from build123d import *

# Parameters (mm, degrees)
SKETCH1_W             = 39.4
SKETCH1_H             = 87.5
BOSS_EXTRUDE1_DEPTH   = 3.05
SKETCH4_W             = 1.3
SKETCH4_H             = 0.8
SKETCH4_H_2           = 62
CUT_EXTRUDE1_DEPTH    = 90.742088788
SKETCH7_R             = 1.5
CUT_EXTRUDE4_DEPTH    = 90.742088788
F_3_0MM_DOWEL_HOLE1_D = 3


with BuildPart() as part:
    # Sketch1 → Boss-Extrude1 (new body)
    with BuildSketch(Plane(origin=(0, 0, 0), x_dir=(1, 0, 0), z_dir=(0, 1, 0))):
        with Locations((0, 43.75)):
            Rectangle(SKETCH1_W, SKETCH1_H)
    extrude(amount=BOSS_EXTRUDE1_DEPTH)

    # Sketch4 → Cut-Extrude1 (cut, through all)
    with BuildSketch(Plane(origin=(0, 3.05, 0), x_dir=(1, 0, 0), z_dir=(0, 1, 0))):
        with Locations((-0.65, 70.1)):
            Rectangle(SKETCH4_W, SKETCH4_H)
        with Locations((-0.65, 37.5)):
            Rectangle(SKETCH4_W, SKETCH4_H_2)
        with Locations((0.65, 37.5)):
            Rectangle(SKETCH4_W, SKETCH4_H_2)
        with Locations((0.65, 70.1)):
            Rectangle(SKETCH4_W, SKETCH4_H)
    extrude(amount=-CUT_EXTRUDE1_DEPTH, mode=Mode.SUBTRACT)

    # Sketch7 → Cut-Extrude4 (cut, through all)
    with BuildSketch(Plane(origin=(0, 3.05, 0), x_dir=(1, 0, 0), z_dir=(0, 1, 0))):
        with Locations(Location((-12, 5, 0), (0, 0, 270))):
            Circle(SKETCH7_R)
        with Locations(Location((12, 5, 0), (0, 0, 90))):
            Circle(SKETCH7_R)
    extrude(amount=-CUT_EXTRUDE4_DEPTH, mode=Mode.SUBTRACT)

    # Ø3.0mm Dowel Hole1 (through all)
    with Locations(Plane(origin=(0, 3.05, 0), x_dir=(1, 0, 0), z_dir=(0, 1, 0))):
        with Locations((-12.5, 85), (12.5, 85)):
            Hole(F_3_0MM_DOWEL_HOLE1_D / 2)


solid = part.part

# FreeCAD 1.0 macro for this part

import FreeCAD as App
import Part
import Sketcher
Q = App.Units.Quantity

doc = App.newDocument("Part")
body = doc.addObject("PartDesign::Body", "Body")

# Sketch on XZ plane
sketch1 = body.newObject("Sketcher::SketchObject", "Sketch")
sketch1.AttachmentSupport = (doc.getObject("XZ_Plane"), [""])
sketch1.MapMode = "FlatFace"
sketch1.addGeometry([
    Part.LineSegment(App.Vector(-20, -88, 0), App.Vector(-20, 0, 0)),
    Part.LineSegment(App.Vector(-20, 0, 0), App.Vector(20, 0, 0)),
    Part.LineSegment(App.Vector(20, 0, 0), App.Vector(20, -88, 0)),
    Part.LineSegment(App.Vector(20, -88, 0), App.Vector(-20, -88, 0)),
], False)
sketch1.addConstraint([
    Sketcher.Constraint("Coincident", 0, 2, 1, 1),
    Sketcher.Constraint("Coincident", 1, 2, 2, 1),
    Sketcher.Constraint("Coincident", 2, 2, 3, 1),
    Sketcher.Constraint("Coincident", 3, 2, 0, 1),
    Sketcher.Constraint("Vertical", 0),
    Sketcher.Constraint("Horizontal", 1),
    Sketcher.Constraint("Vertical", 2),
    Sketcher.Constraint("Horizontal", 3),
    Sketcher.Constraint("Symmetric", 0, 2, 1, 2, -1, 1),
    Sketcher.Constraint("DistanceX", 1, 1, 1, 2, Q("39.4 mm")),
    Sketcher.Constraint("DistanceY", 0, 1, 0, 2, Q("87.5 mm")),
])
pad1 = body.newObject("PartDesign::Pad", "Pad")
pad1.Profile = sketch1
pad1.Length = 3.05
pad1.Reversed = True

# Sketch on XZ plane
sketch2 = body.newObject("Sketcher::SketchObject", "Sketch001")
sketch2.AttachmentSupport = (doc.getObject("XZ_Plane"), [""])
sketch2.MapMode = "FlatFace"
sketch2.AttachmentOffset = App.Placement(App.Vector(0, 0, -3.05), App.Rotation())
sketch2.addGeometry([
    Part.LineSegment(App.Vector(-1.3, -70.5, 0), App.Vector(-1.3, -69.7, 0)),  # 0
    Part.LineSegment(App.Vector(-1.3, -69.7, 0), App.Vector(1.3, -69.7, 0)),  # 1
    Part.LineSegment(App.Vector(1.3, -69.7, 0), App.Vector(1.3, -70.5, 0)),  # 2
    Part.LineSegment(App.Vector(1.3, -70.5, 0), App.Vector(-1.3, -70.5, 0)),  # 3
    Part.LineSegment(App.Vector(-1.3, -68.5, 0), App.Vector(-1.3, -6.5, 0)),  # 4
    Part.LineSegment(App.Vector(-1.3, -6.5, 0), App.Vector(1.3, -6.5, 0)),  # 5
    Part.LineSegment(App.Vector(1.3, -6.5, 0), App.Vector(1.3, -68.5, 0)),  # 6
    Part.LineSegment(App.Vector(1.3, -68.5, 0), App.Vector(-1.3, -68.5, 0)),  # 7
], False)
sketch2.addConstraint([
    Sketcher.Constraint("Coincident", 0, 2, 1, 1),
    Sketcher.Constraint("Coincident", 1, 2, 2, 1),
    Sketcher.Constraint("Coincident", 2, 2, 3, 1),
    Sketcher.Constraint("Coincident", 3, 2, 0, 1),
    Sketcher.Constraint("Coincident", 4, 2, 5, 1),
    Sketcher.Constraint("Coincident", 5, 2, 6, 1),
    Sketcher.Constraint("Coincident", 6, 2, 7, 1),
    Sketcher.Constraint("Coincident", 7, 2, 4, 1),
    Sketcher.Constraint("Vertical", 0),
    Sketcher.Constraint("Horizontal", 1),
    Sketcher.Constraint("Vertical", 2),
    Sketcher.Constraint("Horizontal", 3),
    Sketcher.Constraint("Vertical", 4),
    Sketcher.Constraint("Horizontal", 5),
    Sketcher.Constraint("Vertical", 6),
    Sketcher.Constraint("Horizontal", 7),
    Sketcher.Constraint("Vertical", 3, 2, 4, 2),
    Sketcher.Constraint("Vertical", 2, 2, 5, 2),
    Sketcher.Constraint("DistanceY", 4, 1, 4, 2, Q("62 mm")),
    Sketcher.Constraint("DistanceX", 1, 1, 1, 2, Q("2.6 mm")),
    Sketcher.Constraint("DistanceY", 0, 1, 0, 2, Q("0.8 mm")),
    Sketcher.Constraint("DistanceY", 3, 2, 4, 2, Q("64 mm")),
    Sketcher.Constraint("DistanceX", 0, 2, -1, 1, Q("1.3 mm")),
    Sketcher.Constraint("DistanceY", 0, 2, -1, 1, Q("69.7 mm")),
])
pocket1 = body.newObject("PartDesign::Pocket", "Pocket")
pocket1.Profile = sketch2
pocket1.Type = "ThroughAll"
pocket1.Reversed = True

# Sketch on XZ plane
sketch3 = body.newObject("Sketcher::SketchObject", "Sketch002")
sketch3.AttachmentSupport = (doc.getObject("XZ_Plane"), [""])
sketch3.MapMode = "FlatFace"
sketch3.AttachmentOffset = App.Placement(App.Vector(0, 0, -3.05), App.Rotation())
sketch3.addGeometry([
    Part.Circle(App.Vector(-12, -5, 0), App.Vector(0, 0, 1), 1.5),
    Part.Circle(App.Vector(12, -5, 0), App.Vector(0, 0, 1), 1.5),
], False)
sketch3.addConstraint([
    Sketcher.Constraint("Equal", 0, 1),
    Sketcher.Constraint("Symmetric", 0, 3, 1, 3, -2),
    Sketcher.Constraint("Diameter", 0, Q("3 mm")),
    Sketcher.Constraint("DistanceX", 0, 3, -1, 1, Q("12 mm")),
    Sketcher.Constraint("DistanceY", 0, 3, -1, 1, Q("5 mm")),
])
pocket2 = body.newObject("PartDesign::Pocket", "Pocket001")
pocket2.Profile = sketch3
pocket2.Type = "ThroughAll"
pocket2.Reversed = True

# Sketch on XZ plane
sketch4 = body.newObject("Sketcher::SketchObject", "Sketch003")
sketch4.AttachmentSupport = (doc.getObject("XZ_Plane"), [""])
sketch4.MapMode = "FlatFace"
sketch4.AttachmentOffset = App.Placement(App.Vector(0, 0, -3.05), App.Rotation())
sketch4.addGeometry([
    Part.Circle(App.Vector(-12.5, -85, 0), App.Vector(0, 0, 1), 1.5),
    Part.Circle(App.Vector(12.5, -85, 0), App.Vector(0, 0, 1), 1.5),
], False)
sketch4.addConstraint([
    Sketcher.Constraint("Equal", 0, 1),
    Sketcher.Constraint("Symmetric", 0, 3, 1, 3, -2),
    Sketcher.Constraint("Diameter", 0, Q("3 mm")),
    Sketcher.Constraint("DistanceY", 0, 3, -1, 1, Q("85 mm")),
    Sketcher.Constraint("DistanceX", 0, 3, 1, 3, Q("25 mm")),
])
doc.recompute()
hole = body.newObject("PartDesign::Hole", "Hole")
hole.Profile = sketch4
hole.ThreadType = "None"
hole.Diameter = 3
hole.DepthType = "ThroughAll"
hole.Reversed = True

doc.recompute()
